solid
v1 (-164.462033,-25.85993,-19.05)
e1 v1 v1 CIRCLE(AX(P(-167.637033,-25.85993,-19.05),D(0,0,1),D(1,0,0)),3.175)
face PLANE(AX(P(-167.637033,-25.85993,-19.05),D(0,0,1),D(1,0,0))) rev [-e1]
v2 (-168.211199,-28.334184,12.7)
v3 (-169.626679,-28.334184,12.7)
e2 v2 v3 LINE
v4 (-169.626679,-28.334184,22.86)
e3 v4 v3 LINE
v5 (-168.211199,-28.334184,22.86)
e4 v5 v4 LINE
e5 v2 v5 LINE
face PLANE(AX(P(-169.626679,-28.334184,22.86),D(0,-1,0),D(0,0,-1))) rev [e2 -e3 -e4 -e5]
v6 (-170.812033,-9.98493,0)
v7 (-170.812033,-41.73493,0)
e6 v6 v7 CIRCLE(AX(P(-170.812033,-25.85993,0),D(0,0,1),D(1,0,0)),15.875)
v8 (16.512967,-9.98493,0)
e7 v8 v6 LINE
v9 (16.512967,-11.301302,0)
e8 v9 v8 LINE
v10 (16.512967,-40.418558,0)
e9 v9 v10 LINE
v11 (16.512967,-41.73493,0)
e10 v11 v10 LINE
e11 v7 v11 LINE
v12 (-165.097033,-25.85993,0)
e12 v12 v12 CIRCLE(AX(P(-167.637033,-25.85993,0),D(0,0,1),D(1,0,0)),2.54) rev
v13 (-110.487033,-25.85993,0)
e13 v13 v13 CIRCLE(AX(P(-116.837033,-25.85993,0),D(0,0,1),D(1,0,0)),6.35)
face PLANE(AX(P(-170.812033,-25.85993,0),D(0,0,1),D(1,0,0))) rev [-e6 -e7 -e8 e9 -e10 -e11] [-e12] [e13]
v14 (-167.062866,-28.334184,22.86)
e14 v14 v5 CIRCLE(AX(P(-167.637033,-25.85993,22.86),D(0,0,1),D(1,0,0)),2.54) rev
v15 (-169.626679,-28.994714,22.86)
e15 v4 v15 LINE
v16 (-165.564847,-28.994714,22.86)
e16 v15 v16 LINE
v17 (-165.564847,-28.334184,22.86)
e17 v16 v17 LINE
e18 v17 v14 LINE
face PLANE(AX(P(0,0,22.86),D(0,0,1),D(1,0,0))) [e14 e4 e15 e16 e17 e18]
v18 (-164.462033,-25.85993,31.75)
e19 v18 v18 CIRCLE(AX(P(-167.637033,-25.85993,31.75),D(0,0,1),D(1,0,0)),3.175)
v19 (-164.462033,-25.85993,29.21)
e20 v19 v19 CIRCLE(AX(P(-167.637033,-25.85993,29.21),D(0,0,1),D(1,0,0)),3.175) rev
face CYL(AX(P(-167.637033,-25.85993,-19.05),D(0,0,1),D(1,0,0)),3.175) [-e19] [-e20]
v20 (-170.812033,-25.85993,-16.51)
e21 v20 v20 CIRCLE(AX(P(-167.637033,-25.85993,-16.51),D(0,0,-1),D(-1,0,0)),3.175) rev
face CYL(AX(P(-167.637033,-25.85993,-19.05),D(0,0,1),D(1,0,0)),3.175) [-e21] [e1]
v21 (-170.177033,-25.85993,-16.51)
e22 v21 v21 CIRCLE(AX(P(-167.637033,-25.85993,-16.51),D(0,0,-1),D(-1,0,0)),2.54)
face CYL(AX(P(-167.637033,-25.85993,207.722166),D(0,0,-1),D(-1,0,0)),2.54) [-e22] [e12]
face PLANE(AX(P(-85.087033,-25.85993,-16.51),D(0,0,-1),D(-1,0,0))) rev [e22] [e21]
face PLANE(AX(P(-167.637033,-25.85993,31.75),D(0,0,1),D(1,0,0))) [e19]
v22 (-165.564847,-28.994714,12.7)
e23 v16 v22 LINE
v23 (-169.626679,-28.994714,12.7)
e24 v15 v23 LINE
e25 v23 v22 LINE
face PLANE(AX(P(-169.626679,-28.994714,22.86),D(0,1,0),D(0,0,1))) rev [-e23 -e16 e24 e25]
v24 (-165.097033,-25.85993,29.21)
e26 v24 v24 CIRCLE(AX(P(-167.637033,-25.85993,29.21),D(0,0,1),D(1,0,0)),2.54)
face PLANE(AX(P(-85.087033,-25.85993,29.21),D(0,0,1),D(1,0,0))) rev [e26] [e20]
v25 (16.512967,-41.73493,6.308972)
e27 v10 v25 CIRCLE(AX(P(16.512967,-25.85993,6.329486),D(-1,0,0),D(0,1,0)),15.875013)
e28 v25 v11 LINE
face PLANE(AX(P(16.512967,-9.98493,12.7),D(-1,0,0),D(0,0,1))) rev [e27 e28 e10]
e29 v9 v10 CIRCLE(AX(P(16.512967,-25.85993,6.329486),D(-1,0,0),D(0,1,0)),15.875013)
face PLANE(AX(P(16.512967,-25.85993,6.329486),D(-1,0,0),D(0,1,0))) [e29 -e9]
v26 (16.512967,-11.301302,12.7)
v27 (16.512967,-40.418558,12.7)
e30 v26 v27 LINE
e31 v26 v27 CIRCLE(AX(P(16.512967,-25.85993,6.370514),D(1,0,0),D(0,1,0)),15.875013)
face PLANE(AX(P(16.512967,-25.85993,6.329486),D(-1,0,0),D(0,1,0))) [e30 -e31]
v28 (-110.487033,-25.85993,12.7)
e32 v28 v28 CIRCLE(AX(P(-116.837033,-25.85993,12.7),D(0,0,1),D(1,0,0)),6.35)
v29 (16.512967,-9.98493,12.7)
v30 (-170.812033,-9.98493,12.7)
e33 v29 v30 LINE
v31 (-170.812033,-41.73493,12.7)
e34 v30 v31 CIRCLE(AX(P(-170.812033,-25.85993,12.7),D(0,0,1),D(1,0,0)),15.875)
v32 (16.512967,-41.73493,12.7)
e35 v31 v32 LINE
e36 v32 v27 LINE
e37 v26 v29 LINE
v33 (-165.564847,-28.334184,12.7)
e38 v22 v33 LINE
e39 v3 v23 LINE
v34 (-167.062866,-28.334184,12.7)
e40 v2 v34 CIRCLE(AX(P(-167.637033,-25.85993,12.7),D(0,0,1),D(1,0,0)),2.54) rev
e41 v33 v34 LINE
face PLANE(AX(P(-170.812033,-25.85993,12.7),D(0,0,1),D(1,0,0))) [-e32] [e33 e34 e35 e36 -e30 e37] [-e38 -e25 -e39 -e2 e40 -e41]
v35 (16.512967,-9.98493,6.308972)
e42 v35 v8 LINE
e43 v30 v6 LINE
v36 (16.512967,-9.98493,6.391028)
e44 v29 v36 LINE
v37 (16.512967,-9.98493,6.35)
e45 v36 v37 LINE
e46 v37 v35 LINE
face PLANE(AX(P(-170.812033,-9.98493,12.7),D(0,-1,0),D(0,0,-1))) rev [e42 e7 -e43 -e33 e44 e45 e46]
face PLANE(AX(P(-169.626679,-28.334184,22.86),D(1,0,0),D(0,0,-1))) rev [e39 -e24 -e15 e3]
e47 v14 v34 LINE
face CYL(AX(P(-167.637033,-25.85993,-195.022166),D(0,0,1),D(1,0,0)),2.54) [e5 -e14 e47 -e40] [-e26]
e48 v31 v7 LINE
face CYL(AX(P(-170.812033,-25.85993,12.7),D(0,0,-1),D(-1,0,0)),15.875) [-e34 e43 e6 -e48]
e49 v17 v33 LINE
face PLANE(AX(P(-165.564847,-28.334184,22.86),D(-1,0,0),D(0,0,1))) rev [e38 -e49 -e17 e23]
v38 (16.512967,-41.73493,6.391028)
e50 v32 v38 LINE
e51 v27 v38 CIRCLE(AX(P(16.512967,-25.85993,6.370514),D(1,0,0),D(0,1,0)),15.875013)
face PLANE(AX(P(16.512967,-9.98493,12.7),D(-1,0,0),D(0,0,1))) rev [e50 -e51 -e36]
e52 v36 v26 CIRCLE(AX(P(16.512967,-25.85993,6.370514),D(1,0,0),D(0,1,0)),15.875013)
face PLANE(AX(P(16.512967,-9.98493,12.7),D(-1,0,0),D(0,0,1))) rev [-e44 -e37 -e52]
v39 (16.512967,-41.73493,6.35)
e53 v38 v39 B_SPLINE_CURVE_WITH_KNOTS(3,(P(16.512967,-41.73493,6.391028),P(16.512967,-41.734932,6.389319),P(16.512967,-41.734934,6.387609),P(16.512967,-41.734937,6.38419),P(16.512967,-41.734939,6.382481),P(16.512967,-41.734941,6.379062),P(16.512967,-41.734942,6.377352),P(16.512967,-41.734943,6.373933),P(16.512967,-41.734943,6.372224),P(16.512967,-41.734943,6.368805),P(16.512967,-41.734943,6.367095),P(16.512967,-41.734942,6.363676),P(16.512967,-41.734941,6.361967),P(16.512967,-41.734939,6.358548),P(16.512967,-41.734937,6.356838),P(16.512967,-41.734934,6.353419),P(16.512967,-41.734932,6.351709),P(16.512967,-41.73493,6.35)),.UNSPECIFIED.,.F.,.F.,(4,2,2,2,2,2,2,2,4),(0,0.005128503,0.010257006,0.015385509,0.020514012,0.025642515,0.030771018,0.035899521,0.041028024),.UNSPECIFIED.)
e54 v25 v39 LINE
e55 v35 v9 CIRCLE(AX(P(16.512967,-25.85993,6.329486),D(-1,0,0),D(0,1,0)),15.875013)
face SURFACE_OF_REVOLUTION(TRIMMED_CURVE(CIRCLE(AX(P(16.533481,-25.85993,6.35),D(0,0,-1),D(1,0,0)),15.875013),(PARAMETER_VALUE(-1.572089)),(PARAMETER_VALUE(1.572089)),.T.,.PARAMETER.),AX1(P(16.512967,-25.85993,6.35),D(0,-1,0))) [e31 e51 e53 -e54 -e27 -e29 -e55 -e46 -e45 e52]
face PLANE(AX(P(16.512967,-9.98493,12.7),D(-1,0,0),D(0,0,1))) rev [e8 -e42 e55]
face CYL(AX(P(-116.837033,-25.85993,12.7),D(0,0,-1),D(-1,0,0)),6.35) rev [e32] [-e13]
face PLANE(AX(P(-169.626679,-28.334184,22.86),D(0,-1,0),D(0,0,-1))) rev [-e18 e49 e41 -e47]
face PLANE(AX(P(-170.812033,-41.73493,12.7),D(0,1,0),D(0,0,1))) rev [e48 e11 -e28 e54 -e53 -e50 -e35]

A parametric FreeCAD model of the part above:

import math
import FreeCAD as App
import Part
import Sketcher
Q = App.Units.Quantity

doc = App.newDocument("Part")
body = doc.addObject("PartDesign::Body", "Body")

sketch1 = body.newObject("Sketcher::SketchObject", "Sketch")
sketch1.AttachmentSupport = (doc.getObject("XY_Plane"), [""])
sketch1.MapMode = "FlatFace"
sketch1.addGeometry(Part.LineSegment(App.Vector(17, -42, 0), App.Vector(17, -10, 0)), False)
sketch1.addGeometry(Part.LineSegment(App.Vector(17, -10, 0), App.Vector(-171, -10, 0)), False)
sketch1.addGeometry(Part.ArcOfCircle(Part.Circle(App.Vector(-171, -26, 0), App.Vector(0, 0, 1), 16), math.radians(90), math.radians(270)), False)
sketch1.addGeometry(Part.LineSegment(App.Vector(-171, -42, 0), App.Vector(17, -42, 0)), False)
sketch1.addGeometry(Part.Circle(App.Vector(-117, -26, 0), App.Vector(0, 0, 1), 6), False)
sketch1.addConstraint(Sketcher.Constraint("Coincident", 0, 2, 1, 1))
sketch1.addConstraint(Sketcher.Constraint("Tangent", 1, 2, 2, 1))
sketch1.addConstraint(Sketcher.Constraint("Tangent", 2, 2, 3, 1))
sketch1.addConstraint(Sketcher.Constraint("Coincident", 3, 2, 0, 1))
sketch1.addConstraint(Sketcher.Constraint("Vertical", 0))
sketch1.addConstraint(Sketcher.Constraint("Horizontal", 1))
sketch1.addConstraint(Sketcher.Constraint("Horizontal", 3))
sketch1.addConstraint(Sketcher.Constraint("Horizontal", 2, 3, 4, 3))
sketch1.addConstraint(Sketcher.Constraint("Diameter", 4, Q("0.5 in")))
sketch1.addConstraint(Sketcher.Constraint("Radius", 2, Q("0.625 in")))
sketch1.addConstraint(Sketcher.Constraint("DistanceX", 1, 2, 1, 1, Q("7.375 in")))
sketch1.addConstraint(Sketcher.Constraint("DistanceX", 4, 3, 0, 2, Q("5.25 in")))
sketch1.addConstraint(Sketcher.Constraint("DistanceY", 2, 3, -1, 1, Q("25.85993 mm")))
sketch1.addConstraint(Sketcher.Constraint("DistanceX", 2, 3, -1, 1, Q("170.812033 mm")))
pad1 = body.newObject("PartDesign::Pad", "Pad")
pad1.Profile = sketch1
pad1.Length = Q("0.5 in")

sketch2 = body.newObject("Sketcher::SketchObject", "Sketch001")
sketch2.AttachmentSupport = (doc.getObject("XY_Plane"), [""])
sketch2.MapMode = "FlatFace"
sketch2.AttachmentOffset = App.Placement(App.Vector(0, 0, 0.5 * 25.4), App.Rotation())
sketch2.addGeometry(Part.Circle(App.Vector(-167.6, -25.9, 0), App.Vector(0, 0, 1), 3.2), False)
sketch2.addConstraint(Sketcher.Constraint("Diameter", 0, Q("0.25 in")))
sketch2.addConstraint(Sketcher.Constraint("DistanceY", 0, 3, -1, 1, Q("25.85993 mm")))
sketch2.addConstraint(Sketcher.Constraint("DistanceX", 0, 3, -1, 1, Q("167.637033 mm")))
pad2 = body.newObject("PartDesign::Pad", "Pad001")
pad2.Profile = sketch2
pad2.Type = "TwoLengths"
pad2.Length = Q("0.75 in")
pad2.Length2 = Q("1.25 in")

sketch3 = body.newObject("Sketcher::SketchObject", "Sketch002")
sketch3.AttachmentSupport = (doc.getObject("XY_Plane"), [""])
sketch3.MapMode = "FlatFace"
sketch3.AttachmentOffset = App.Placement(App.Vector(0, 0, 1.15 * 25.4), App.Rotation())
sketch3.addGeometry(Part.LineSegment(App.Vector(-208.9, 12.2, 0), App.Vector(-208.9, -63.9, 0)), False)
sketch3.addGeometry(Part.LineSegment(App.Vector(-208.9, -63.9, 0), App.Vector(38.7, -63.9, 0)), False)
sketch3.addGeometry(Part.LineSegment(App.Vector(38.7, -63.9, 0), App.Vector(38.7, 12.2, 0)), False)
sketch3.addGeometry(Part.LineSegment(App.Vector(38.7, 12.2, 0), App.Vector(-208.9, 12.2, 0)), False)
sketch3.addGeometry(Part.Circle(App.Vector(-167.6, -25.9, 0), App.Vector(0, 0, 1), 2.5), False)
sketch3.addConstraint(Sketcher.Constraint("Coincident", 0, 2, 1, 1))
sketch3.addConstraint(Sketcher.Constraint("Coincident", 1, 2, 2, 1))
sketch3.addConstraint(Sketcher.Constraint("Coincident", 2, 2, 3, 1))
sketch3.addConstraint(Sketcher.Constraint("Coincident", 3, 2, 0, 1))
sketch3.addConstraint(Sketcher.Constraint("Vertical", 0))
sketch3.addConstraint(Sketcher.Constraint("Horizontal", 1))
sketch3.addConstraint(Sketcher.Constraint("Vertical", 2))
sketch3.addConstraint(Sketcher.Constraint("Horizontal", 3))
sketch3.addConstraint(Sketcher.Constraint("Diameter", 4, Q("0.2 in")))
sketch3.addConstraint(Sketcher.Constraint("DistanceX", 1, 1, 1, 2, Q("247.57 mm")))
sketch3.addConstraint(Sketcher.Constraint("DistanceY", 0, 2, 0, 1, Q("76.12 mm")))
sketch3.addConstraint(Sketcher.Constraint("DistanceX", 0, 2, -1, 1, Q("208.872 mm")))
sketch3.addConstraint(Sketcher.Constraint("DistanceY", 0, 2, -1, 1, Q("63.92 mm")))
sketch3.addConstraint(Sketcher.Constraint("DistanceY", 4, 3, -1, 1, Q("25.85993 mm")))
sketch3.addConstraint(Sketcher.Constraint("DistanceX", 4, 3, -1, 1, Q("167.637033 mm")))
pocket1 = body.newObject("PartDesign::Pocket", "Pocket")
pocket1.Profile = sketch3
pocket1.Length = Q("0.65 in")

sketch4 = body.newObject("Sketcher::SketchObject", "Sketch003")
sketch4.AttachmentSupport = (doc.getObject("XY_Plane"), [""])
sketch4.MapMode = "FlatFace"
sketch4.AttachmentOffset = App.Placement(App.Vector(0, 0, -0.65 * 25.4), App.Rotation())
sketch4.addGeometry(Part.LineSegment(App.Vector(38.7, 12.2, 0), App.Vector(38.7, -63.9, 0)), False)
sketch4.addGeometry(Part.LineSegment(App.Vector(38.7, -63.9, 0), App.Vector(-208.9, -63.9, 0)), False)
sketch4.addGeometry(Part.LineSegment(App.Vector(-208.9, -63.9, 0), App.Vector(-208.9, 12.2, 0)), False)
sketch4.addGeometry(Part.LineSegment(App.Vector(-208.9, 12.2, 0), App.Vector(38.7, 12.2, 0)), False)
sketch4.addGeometry(Part.Circle(App.Vector(-167.6, -25.9, 0), App.Vector(0, 0, 1), 2.5), False)
sketch4.addConstraint(Sketcher.Constraint("Coincident", 0, 2, 1, 1))
sketch4.addConstraint(Sketcher.Constraint("Coincident", 1, 2, 2, 1))
sketch4.addConstraint(Sketcher.Constraint("Coincident", 2, 2, 3, 1))
sketch4.addConstraint(Sketcher.Constraint("Coincident", 3, 2, 0, 1))
sketch4.addConstraint(Sketcher.Constraint("Vertical", 0))
sketch4.addConstraint(Sketcher.Constraint("Horizontal", 1))
sketch4.addConstraint(Sketcher.Constraint("Vertical", 2))
sketch4.addConstraint(Sketcher.Constraint("Horizontal", 3))
sketch4.addConstraint(Sketcher.Constraint("Diameter", 4, Q("0.2 in")))
sketch4.addConstraint(Sketcher.Constraint("DistanceX", 1, 2, 1, 1, Q("247.57 mm")))
sketch4.addConstraint(Sketcher.Constraint("DistanceY", 0, 2, 0, 1, Q("76.12 mm")))
sketch4.addConstraint(Sketcher.Constraint("DistanceX", -1, 1, 0, 2, Q("38.698 mm")))
sketch4.addConstraint(Sketcher.Constraint("DistanceY", 0, 2, -1, 1, Q("63.92 mm")))
sketch4.addConstraint(Sketcher.Constraint("DistanceY", 4, 3, -1, 1, Q("25.85993 mm")))
sketch4.addConstraint(Sketcher.Constraint("DistanceX", 4, 3, -1, 1, Q("167.637033 mm")))
pocket2 = body.newObject("PartDesign::Pocket", "Pocket001")
pocket2.Profile = sketch4
pocket2.Length = Q("0.65 in")
pocket2.Reversed = True

sketch5 = body.newObject("Sketcher::SketchObject", "Sketch004")
sketch5.AttachmentSupport = (doc.getObject("YZ_Plane"), [""])
sketch5.MapMode = "FlatFace"
sketch5.AttachmentOffset = App.Placement(App.Vector(0, 0, 16.512967), App.Rotation())
sketch5.addGeometry(Part.LineSegment(App.Vector(-42, 6, 0), App.Vector(-10, 6, 0)), False)
sketch5.addGeometry(Part.ArcOfCircle(Part.Circle(App.Vector(-26, 6, 0), App.Vector(0, 0, 1), 16), math.radians(0), math.radians(180)), False)
sketch5.addGeometry(Part.LineSegment(App.Vector(-42, 6, 0), App.Vector(-10, 6, 0)), True)
sketch5.addConstraint(Sketcher.Constraint("Coincident", 0, 1, 1, 2))
sketch5.addConstraint(Sketcher.Constraint("Coincident", 1, 1, 0, 2))
sketch5.addConstraint(Sketcher.Constraint("Horizontal", 0))
sketch5.addConstraint(Sketcher.Constraint("Horizontal", 2))
sketch5.addConstraint(Sketcher.Constraint("Coincident", 2, 1, 0, 1))
sketch5.addConstraint(Sketcher.Constraint("Equal", 0, 2))
sketch5.addConstraint(Sketcher.Constraint("DistanceX", 0, 1, 0, 2, Q("1.25 in")))
sketch5.addConstraint(Sketcher.Constraint("DistanceY", -1, 1, 0, 1, Q("0.25 in")))
sketch5.addConstraint(Sketcher.Constraint("DistanceX", 1, 3, -1, 1, Q("25.85993 mm")))
sketch5.addConstraint(Sketcher.Constraint("DistanceY", -1, 1, 1, 3, Q("6.370514 mm")))
revolution = body.newObject("PartDesign::Revolution", "Revolution")
revolution.Profile = sketch5
revolution.ReferenceAxis = (sketch5, ["Axis0"])
revolution.Angle = 180

sketch6 = body.newObject("Sketcher::SketchObject", "Sketch005")
sketch6.AttachmentSupport = (doc.getObject("XY_Plane"), [""])
sketch6.MapMode = "FlatFace"
sketch6.AttachmentOffset = App.Placement(App.Vector(0, 0, 0.5 * 25.4), App.Rotation())
sketch6.addGeometry(Part.LineSegment(App.Vector(-169.6, -28.3, 0), App.Vector(-169.6, -29, 0)), False)
sketch6.addGeometry(Part.LineSegment(App.Vector(-169.6, -29, 0), App.Vector(-165.6, -29, 0)), False)
sketch6.addGeometry(Part.LineSegment(App.Vector(-165.6, -29, 0), App.Vector(-165.6, -28.3, 0)), False)
sketch6.addGeometry(Part.LineSegment(App.Vector(-165.6, -28.3, 0), App.Vector(-169.6, -28.3, 0)), False)
sketch6.addConstraint(Sketcher.Constraint("Coincident", 0, 2, 1, 1))
sketch6.addConstraint(Sketcher.Constraint("Coincident", 1, 2, 2, 1))
sketch6.addConstraint(Sketcher.Constraint("Coincident", 2, 2, 3, 1))
sketch6.addConstraint(Sketcher.Constraint("Coincident", 3, 2, 0, 1))
sketch6.addConstraint(Sketcher.Constraint("Vertical", 0))
sketch6.addConstraint(Sketcher.Constraint("Horizontal", 1))
sketch6.addConstraint(Sketcher.Constraint("Vertical", 2))
sketch6.addConstraint(Sketcher.Constraint("Horizontal", 3))
sketch6.addConstraint(Sketcher.Constraint("DistanceX", 1, 1, 1, 2, Q("4.061832 mm")))
sketch6.addConstraint(Sketcher.Constraint("DistanceY", 0, 2, 0, 1, Q("0.66053 mm")))
sketch6.addConstraint(Sketcher.Constraint("DistanceX", 0, 2, -1, 1, Q("169.626679 mm")))
sketch6.addConstraint(Sketcher.Constraint("DistanceY", 0, 2, -1, 1, Q("28.994714 mm")))
pad3 = body.newObject("PartDesign::Pad", "Pad002")
pad3.Profile = sketch6
pad3.Length = Q("0.4 in")

doc.recompute()
